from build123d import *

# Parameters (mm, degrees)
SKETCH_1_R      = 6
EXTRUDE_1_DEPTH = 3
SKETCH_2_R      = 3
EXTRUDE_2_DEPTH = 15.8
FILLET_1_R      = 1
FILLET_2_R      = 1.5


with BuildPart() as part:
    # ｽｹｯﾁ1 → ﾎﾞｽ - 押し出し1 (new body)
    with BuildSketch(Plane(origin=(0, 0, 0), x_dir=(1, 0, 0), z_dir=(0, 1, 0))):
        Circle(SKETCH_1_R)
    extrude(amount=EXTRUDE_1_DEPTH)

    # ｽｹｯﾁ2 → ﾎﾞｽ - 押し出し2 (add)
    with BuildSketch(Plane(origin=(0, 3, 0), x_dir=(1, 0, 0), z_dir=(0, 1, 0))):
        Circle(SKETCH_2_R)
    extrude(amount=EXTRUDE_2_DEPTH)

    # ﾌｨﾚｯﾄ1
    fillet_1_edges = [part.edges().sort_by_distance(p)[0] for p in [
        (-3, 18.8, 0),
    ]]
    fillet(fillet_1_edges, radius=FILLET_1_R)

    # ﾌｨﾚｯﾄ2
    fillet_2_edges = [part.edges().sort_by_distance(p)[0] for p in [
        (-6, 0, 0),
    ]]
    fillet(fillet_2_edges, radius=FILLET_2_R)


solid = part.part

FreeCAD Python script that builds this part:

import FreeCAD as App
import Part
import Sketcher

V = App.Vector
Q = App.Units.Quantity


def edges_at(feature, points):
    """Names of the edges that pass closest to the given points."""
    edges = feature.Shape.Edges
    near = lambda p: min(range(len(edges)), key=lambda i: edges[i].distToShape(Part.Vertex(*p))[0])
    return sorted({f"Edge{near(p) + 1}" for p in points})

doc = App.newDocument("Part")
body = doc.addObject("PartDesign::Body", "Body")

# Sketch on XZ plane
sketch1 = body.newObject("Sketcher::SketchObject", "Sketch")
sketch1.AttachmentSupport = (doc.getObject("XZ_Plane"), [""])
sketch1.MapMode = "FlatFace"
sketch1.addGeometry(Part.Circle(V(0, 0, 0), V(0, 0, 1), 6), False)
sketch1.addConstraint([
    Sketcher.Constraint("Coincident", 0, 3, -1, 1),
    Sketcher.Constraint("Diameter", 0, Q("12 mm")),
])
pad1 = body.newObject("PartDesign::Pad", "Pad")
pad1.Profile = sketch1
pad1.Length = 3
pad1.Reversed = True

# Sketch on XZ plane
sketch2 = body.newObject("Sketcher::SketchObject", "Sketch001")
sketch2.AttachmentSupport = (doc.getObject("XZ_Plane"), [""])
sketch2.MapMode = "FlatFace"
sketch2.AttachmentOffset = App.Placement(V(0, 0, -3), App.Rotation())
sketch2.addGeometry(Part.Circle(V(0, 0, 0), V(0, 0, 1), 3), False)
sketch2.addConstraint([
    Sketcher.Constraint("Coincident", 0, 3, -1, 1),
    Sketcher.Constraint("Diameter", 0, Q("6 mm")),
])
pad2 = body.newObject("PartDesign::Pad", "Pad001")
pad2.Profile = sketch2
pad2.Length = 15.8
pad2.Reversed = True
doc.recompute()

fillet = body.newObject("PartDesign::Fillet", "Fillet")
fillet.Base = (pad2, edges_at(pad2, [(-3, 18.8, 0)]))
fillet.Radius = 1
doc.recompute()

fillet2 = body.newObject("PartDesign::Fillet", "Fillet001")
fillet2.Base = (fillet, edges_at(fillet, [(-6, 0, 0)]))
fillet2.Radius = 1.5

doc.recompute()
